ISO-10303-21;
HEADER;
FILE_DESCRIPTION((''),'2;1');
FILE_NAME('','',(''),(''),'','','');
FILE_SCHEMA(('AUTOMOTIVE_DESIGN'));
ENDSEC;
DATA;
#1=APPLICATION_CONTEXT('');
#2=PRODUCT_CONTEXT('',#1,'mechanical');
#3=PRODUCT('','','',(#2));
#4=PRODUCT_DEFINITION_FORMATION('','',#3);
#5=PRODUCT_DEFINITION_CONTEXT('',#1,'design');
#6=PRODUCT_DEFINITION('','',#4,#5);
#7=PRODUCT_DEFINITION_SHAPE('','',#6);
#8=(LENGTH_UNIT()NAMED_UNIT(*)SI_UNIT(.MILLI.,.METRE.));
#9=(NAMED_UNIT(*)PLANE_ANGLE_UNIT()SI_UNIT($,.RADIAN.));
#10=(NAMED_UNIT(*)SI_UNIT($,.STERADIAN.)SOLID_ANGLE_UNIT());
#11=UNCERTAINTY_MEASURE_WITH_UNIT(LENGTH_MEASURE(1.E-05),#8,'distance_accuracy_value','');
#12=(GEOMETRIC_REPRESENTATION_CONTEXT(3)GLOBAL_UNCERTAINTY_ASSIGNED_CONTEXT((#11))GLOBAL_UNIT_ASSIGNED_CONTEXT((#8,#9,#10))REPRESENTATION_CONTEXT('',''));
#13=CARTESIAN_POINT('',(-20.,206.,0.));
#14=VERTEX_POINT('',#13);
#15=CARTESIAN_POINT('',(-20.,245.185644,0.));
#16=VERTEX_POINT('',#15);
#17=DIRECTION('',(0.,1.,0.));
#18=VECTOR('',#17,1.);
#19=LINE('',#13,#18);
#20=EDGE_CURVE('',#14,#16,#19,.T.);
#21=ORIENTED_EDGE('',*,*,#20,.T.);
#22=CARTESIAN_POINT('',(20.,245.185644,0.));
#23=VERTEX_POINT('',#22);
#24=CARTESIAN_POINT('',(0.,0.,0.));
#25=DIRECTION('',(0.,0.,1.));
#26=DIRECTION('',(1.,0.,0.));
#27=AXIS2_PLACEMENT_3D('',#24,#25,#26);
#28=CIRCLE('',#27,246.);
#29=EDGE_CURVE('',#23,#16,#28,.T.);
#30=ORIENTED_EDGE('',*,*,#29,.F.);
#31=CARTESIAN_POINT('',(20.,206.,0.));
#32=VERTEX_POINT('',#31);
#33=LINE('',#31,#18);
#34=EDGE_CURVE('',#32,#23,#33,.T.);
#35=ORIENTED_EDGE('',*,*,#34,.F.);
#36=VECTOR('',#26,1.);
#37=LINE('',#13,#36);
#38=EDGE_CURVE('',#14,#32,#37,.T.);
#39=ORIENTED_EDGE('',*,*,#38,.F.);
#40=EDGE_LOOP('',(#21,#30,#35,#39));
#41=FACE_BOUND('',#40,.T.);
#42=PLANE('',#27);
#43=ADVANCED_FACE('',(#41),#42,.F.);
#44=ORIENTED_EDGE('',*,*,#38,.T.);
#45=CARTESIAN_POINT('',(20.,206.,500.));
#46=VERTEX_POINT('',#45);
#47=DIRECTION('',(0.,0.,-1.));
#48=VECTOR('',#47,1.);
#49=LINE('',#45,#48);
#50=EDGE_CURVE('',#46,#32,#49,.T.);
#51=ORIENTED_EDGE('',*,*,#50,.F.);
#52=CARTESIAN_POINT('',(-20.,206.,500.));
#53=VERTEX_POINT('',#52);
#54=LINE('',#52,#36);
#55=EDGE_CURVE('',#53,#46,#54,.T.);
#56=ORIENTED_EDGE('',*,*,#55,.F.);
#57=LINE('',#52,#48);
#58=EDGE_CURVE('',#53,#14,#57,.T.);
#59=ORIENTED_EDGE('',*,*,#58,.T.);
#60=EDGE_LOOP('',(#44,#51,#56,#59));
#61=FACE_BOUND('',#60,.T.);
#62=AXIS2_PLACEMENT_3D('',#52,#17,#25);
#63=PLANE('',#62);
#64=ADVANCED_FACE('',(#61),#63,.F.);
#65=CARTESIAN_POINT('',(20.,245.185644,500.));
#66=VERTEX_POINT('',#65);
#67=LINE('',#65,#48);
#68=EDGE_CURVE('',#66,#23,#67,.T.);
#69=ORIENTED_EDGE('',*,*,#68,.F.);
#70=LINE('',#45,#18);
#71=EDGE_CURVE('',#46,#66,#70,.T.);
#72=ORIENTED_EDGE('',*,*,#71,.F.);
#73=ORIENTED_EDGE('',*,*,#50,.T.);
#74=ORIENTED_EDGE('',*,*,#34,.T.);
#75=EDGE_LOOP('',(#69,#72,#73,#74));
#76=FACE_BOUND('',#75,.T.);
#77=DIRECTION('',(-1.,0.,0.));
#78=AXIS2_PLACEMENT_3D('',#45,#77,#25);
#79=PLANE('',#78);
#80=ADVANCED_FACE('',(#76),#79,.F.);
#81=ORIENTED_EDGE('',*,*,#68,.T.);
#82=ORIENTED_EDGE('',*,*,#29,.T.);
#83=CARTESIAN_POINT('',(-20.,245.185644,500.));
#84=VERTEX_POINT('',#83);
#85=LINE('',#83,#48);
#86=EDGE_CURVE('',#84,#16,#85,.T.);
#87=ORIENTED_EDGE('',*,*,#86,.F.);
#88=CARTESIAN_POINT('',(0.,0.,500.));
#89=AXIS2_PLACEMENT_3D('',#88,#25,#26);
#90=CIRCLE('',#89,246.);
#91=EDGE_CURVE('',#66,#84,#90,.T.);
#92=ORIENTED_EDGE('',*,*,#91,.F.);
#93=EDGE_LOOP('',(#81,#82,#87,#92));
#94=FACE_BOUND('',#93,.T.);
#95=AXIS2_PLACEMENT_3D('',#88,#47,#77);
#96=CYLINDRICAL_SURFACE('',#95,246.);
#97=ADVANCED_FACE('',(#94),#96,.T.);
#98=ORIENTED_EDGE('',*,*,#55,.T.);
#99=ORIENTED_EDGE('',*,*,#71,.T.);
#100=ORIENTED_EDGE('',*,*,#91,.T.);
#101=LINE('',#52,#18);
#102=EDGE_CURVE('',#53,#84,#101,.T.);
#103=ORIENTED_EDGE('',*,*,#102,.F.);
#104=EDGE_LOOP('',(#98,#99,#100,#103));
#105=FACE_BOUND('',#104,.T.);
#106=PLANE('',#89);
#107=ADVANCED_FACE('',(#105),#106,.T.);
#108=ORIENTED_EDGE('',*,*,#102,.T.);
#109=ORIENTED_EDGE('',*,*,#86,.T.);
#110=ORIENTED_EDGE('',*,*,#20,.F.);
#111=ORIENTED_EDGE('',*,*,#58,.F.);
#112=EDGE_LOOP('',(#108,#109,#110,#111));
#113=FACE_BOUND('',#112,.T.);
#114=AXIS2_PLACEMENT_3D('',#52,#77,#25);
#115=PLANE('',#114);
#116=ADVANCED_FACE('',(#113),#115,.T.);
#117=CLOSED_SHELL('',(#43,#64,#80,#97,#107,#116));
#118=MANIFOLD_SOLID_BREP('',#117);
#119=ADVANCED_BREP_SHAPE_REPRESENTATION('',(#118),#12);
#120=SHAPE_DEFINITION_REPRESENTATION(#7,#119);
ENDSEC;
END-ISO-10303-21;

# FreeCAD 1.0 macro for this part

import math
import FreeCAD as App
import Part
import Sketcher
from FreeCAD import Vector
Q = App.Units.Quantity

doc = App.newDocument("Part")
body = doc.addObject("PartDesign::Body", "Body")

# Sketch on XY plane
sketch1 = body.newObject("Sketcher::SketchObject", "Sketch")
sketch1.AttachmentSupport = (doc.getObject("XY_Plane"), [""])
sketch1.MapMode = "FlatFace"
sketch1.addGeometry(Part.LineSegment(Vector(-20, 245, 0), Vector(-20, 206, 0)), False)
sketch1.addGeometry(Part.LineSegment(Vector(-20, 206, 0), Vector(20, 206, 0)), False)
sketch1.addGeometry(Part.LineSegment(Vector(20, 206, 0), Vector(20, 245, 0)), False)
sketch1.addGeometry(Part.ArcOfCircle(Part.Circle(Vector(0, 0, 0), Vector(0, 0, 1), 246), math.radians(85.34), math.radians(94.66)), False)
sketch1.addConstraint(Sketcher.Constraint("Coincident", 0, 2, 1, 1))
sketch1.addConstraint(Sketcher.Constraint("Coincident", 1, 2, 2, 1))
sketch1.addConstraint(Sketcher.Constraint("Coincident", 2, 2, 3, 1))
sketch1.addConstraint(Sketcher.Constraint("Coincident", 3, 2, 0, 1))
sketch1.addConstraint(Sketcher.Constraint("Vertical", 0))
sketch1.addConstraint(Sketcher.Constraint("Horizontal", 1))
sketch1.addConstraint(Sketcher.Constraint("Vertical", 2))
sketch1.addConstraint(Sketcher.Constraint("Coincident", 3, 3, -1, 1))
sketch1.addConstraint(Sketcher.Constraint("Horizontal", 2, 2, 3, 2))
sketch1.addConstraint(Sketcher.Constraint("Radius", 3, Q("246 mm")))
sketch1.addConstraint(Sketcher.Constraint("DistanceX", 1, 1, 1, 2, Q("40 mm")))
sketch1.addConstraint(Sketcher.Constraint("DistanceY", -1, 1, 0, 2, Q("206 mm")))
pad1 = body.newObject("PartDesign::Pad", "Pad")
pad1.Profile = sketch1
pad1.Length = 500

doc.recompute()
